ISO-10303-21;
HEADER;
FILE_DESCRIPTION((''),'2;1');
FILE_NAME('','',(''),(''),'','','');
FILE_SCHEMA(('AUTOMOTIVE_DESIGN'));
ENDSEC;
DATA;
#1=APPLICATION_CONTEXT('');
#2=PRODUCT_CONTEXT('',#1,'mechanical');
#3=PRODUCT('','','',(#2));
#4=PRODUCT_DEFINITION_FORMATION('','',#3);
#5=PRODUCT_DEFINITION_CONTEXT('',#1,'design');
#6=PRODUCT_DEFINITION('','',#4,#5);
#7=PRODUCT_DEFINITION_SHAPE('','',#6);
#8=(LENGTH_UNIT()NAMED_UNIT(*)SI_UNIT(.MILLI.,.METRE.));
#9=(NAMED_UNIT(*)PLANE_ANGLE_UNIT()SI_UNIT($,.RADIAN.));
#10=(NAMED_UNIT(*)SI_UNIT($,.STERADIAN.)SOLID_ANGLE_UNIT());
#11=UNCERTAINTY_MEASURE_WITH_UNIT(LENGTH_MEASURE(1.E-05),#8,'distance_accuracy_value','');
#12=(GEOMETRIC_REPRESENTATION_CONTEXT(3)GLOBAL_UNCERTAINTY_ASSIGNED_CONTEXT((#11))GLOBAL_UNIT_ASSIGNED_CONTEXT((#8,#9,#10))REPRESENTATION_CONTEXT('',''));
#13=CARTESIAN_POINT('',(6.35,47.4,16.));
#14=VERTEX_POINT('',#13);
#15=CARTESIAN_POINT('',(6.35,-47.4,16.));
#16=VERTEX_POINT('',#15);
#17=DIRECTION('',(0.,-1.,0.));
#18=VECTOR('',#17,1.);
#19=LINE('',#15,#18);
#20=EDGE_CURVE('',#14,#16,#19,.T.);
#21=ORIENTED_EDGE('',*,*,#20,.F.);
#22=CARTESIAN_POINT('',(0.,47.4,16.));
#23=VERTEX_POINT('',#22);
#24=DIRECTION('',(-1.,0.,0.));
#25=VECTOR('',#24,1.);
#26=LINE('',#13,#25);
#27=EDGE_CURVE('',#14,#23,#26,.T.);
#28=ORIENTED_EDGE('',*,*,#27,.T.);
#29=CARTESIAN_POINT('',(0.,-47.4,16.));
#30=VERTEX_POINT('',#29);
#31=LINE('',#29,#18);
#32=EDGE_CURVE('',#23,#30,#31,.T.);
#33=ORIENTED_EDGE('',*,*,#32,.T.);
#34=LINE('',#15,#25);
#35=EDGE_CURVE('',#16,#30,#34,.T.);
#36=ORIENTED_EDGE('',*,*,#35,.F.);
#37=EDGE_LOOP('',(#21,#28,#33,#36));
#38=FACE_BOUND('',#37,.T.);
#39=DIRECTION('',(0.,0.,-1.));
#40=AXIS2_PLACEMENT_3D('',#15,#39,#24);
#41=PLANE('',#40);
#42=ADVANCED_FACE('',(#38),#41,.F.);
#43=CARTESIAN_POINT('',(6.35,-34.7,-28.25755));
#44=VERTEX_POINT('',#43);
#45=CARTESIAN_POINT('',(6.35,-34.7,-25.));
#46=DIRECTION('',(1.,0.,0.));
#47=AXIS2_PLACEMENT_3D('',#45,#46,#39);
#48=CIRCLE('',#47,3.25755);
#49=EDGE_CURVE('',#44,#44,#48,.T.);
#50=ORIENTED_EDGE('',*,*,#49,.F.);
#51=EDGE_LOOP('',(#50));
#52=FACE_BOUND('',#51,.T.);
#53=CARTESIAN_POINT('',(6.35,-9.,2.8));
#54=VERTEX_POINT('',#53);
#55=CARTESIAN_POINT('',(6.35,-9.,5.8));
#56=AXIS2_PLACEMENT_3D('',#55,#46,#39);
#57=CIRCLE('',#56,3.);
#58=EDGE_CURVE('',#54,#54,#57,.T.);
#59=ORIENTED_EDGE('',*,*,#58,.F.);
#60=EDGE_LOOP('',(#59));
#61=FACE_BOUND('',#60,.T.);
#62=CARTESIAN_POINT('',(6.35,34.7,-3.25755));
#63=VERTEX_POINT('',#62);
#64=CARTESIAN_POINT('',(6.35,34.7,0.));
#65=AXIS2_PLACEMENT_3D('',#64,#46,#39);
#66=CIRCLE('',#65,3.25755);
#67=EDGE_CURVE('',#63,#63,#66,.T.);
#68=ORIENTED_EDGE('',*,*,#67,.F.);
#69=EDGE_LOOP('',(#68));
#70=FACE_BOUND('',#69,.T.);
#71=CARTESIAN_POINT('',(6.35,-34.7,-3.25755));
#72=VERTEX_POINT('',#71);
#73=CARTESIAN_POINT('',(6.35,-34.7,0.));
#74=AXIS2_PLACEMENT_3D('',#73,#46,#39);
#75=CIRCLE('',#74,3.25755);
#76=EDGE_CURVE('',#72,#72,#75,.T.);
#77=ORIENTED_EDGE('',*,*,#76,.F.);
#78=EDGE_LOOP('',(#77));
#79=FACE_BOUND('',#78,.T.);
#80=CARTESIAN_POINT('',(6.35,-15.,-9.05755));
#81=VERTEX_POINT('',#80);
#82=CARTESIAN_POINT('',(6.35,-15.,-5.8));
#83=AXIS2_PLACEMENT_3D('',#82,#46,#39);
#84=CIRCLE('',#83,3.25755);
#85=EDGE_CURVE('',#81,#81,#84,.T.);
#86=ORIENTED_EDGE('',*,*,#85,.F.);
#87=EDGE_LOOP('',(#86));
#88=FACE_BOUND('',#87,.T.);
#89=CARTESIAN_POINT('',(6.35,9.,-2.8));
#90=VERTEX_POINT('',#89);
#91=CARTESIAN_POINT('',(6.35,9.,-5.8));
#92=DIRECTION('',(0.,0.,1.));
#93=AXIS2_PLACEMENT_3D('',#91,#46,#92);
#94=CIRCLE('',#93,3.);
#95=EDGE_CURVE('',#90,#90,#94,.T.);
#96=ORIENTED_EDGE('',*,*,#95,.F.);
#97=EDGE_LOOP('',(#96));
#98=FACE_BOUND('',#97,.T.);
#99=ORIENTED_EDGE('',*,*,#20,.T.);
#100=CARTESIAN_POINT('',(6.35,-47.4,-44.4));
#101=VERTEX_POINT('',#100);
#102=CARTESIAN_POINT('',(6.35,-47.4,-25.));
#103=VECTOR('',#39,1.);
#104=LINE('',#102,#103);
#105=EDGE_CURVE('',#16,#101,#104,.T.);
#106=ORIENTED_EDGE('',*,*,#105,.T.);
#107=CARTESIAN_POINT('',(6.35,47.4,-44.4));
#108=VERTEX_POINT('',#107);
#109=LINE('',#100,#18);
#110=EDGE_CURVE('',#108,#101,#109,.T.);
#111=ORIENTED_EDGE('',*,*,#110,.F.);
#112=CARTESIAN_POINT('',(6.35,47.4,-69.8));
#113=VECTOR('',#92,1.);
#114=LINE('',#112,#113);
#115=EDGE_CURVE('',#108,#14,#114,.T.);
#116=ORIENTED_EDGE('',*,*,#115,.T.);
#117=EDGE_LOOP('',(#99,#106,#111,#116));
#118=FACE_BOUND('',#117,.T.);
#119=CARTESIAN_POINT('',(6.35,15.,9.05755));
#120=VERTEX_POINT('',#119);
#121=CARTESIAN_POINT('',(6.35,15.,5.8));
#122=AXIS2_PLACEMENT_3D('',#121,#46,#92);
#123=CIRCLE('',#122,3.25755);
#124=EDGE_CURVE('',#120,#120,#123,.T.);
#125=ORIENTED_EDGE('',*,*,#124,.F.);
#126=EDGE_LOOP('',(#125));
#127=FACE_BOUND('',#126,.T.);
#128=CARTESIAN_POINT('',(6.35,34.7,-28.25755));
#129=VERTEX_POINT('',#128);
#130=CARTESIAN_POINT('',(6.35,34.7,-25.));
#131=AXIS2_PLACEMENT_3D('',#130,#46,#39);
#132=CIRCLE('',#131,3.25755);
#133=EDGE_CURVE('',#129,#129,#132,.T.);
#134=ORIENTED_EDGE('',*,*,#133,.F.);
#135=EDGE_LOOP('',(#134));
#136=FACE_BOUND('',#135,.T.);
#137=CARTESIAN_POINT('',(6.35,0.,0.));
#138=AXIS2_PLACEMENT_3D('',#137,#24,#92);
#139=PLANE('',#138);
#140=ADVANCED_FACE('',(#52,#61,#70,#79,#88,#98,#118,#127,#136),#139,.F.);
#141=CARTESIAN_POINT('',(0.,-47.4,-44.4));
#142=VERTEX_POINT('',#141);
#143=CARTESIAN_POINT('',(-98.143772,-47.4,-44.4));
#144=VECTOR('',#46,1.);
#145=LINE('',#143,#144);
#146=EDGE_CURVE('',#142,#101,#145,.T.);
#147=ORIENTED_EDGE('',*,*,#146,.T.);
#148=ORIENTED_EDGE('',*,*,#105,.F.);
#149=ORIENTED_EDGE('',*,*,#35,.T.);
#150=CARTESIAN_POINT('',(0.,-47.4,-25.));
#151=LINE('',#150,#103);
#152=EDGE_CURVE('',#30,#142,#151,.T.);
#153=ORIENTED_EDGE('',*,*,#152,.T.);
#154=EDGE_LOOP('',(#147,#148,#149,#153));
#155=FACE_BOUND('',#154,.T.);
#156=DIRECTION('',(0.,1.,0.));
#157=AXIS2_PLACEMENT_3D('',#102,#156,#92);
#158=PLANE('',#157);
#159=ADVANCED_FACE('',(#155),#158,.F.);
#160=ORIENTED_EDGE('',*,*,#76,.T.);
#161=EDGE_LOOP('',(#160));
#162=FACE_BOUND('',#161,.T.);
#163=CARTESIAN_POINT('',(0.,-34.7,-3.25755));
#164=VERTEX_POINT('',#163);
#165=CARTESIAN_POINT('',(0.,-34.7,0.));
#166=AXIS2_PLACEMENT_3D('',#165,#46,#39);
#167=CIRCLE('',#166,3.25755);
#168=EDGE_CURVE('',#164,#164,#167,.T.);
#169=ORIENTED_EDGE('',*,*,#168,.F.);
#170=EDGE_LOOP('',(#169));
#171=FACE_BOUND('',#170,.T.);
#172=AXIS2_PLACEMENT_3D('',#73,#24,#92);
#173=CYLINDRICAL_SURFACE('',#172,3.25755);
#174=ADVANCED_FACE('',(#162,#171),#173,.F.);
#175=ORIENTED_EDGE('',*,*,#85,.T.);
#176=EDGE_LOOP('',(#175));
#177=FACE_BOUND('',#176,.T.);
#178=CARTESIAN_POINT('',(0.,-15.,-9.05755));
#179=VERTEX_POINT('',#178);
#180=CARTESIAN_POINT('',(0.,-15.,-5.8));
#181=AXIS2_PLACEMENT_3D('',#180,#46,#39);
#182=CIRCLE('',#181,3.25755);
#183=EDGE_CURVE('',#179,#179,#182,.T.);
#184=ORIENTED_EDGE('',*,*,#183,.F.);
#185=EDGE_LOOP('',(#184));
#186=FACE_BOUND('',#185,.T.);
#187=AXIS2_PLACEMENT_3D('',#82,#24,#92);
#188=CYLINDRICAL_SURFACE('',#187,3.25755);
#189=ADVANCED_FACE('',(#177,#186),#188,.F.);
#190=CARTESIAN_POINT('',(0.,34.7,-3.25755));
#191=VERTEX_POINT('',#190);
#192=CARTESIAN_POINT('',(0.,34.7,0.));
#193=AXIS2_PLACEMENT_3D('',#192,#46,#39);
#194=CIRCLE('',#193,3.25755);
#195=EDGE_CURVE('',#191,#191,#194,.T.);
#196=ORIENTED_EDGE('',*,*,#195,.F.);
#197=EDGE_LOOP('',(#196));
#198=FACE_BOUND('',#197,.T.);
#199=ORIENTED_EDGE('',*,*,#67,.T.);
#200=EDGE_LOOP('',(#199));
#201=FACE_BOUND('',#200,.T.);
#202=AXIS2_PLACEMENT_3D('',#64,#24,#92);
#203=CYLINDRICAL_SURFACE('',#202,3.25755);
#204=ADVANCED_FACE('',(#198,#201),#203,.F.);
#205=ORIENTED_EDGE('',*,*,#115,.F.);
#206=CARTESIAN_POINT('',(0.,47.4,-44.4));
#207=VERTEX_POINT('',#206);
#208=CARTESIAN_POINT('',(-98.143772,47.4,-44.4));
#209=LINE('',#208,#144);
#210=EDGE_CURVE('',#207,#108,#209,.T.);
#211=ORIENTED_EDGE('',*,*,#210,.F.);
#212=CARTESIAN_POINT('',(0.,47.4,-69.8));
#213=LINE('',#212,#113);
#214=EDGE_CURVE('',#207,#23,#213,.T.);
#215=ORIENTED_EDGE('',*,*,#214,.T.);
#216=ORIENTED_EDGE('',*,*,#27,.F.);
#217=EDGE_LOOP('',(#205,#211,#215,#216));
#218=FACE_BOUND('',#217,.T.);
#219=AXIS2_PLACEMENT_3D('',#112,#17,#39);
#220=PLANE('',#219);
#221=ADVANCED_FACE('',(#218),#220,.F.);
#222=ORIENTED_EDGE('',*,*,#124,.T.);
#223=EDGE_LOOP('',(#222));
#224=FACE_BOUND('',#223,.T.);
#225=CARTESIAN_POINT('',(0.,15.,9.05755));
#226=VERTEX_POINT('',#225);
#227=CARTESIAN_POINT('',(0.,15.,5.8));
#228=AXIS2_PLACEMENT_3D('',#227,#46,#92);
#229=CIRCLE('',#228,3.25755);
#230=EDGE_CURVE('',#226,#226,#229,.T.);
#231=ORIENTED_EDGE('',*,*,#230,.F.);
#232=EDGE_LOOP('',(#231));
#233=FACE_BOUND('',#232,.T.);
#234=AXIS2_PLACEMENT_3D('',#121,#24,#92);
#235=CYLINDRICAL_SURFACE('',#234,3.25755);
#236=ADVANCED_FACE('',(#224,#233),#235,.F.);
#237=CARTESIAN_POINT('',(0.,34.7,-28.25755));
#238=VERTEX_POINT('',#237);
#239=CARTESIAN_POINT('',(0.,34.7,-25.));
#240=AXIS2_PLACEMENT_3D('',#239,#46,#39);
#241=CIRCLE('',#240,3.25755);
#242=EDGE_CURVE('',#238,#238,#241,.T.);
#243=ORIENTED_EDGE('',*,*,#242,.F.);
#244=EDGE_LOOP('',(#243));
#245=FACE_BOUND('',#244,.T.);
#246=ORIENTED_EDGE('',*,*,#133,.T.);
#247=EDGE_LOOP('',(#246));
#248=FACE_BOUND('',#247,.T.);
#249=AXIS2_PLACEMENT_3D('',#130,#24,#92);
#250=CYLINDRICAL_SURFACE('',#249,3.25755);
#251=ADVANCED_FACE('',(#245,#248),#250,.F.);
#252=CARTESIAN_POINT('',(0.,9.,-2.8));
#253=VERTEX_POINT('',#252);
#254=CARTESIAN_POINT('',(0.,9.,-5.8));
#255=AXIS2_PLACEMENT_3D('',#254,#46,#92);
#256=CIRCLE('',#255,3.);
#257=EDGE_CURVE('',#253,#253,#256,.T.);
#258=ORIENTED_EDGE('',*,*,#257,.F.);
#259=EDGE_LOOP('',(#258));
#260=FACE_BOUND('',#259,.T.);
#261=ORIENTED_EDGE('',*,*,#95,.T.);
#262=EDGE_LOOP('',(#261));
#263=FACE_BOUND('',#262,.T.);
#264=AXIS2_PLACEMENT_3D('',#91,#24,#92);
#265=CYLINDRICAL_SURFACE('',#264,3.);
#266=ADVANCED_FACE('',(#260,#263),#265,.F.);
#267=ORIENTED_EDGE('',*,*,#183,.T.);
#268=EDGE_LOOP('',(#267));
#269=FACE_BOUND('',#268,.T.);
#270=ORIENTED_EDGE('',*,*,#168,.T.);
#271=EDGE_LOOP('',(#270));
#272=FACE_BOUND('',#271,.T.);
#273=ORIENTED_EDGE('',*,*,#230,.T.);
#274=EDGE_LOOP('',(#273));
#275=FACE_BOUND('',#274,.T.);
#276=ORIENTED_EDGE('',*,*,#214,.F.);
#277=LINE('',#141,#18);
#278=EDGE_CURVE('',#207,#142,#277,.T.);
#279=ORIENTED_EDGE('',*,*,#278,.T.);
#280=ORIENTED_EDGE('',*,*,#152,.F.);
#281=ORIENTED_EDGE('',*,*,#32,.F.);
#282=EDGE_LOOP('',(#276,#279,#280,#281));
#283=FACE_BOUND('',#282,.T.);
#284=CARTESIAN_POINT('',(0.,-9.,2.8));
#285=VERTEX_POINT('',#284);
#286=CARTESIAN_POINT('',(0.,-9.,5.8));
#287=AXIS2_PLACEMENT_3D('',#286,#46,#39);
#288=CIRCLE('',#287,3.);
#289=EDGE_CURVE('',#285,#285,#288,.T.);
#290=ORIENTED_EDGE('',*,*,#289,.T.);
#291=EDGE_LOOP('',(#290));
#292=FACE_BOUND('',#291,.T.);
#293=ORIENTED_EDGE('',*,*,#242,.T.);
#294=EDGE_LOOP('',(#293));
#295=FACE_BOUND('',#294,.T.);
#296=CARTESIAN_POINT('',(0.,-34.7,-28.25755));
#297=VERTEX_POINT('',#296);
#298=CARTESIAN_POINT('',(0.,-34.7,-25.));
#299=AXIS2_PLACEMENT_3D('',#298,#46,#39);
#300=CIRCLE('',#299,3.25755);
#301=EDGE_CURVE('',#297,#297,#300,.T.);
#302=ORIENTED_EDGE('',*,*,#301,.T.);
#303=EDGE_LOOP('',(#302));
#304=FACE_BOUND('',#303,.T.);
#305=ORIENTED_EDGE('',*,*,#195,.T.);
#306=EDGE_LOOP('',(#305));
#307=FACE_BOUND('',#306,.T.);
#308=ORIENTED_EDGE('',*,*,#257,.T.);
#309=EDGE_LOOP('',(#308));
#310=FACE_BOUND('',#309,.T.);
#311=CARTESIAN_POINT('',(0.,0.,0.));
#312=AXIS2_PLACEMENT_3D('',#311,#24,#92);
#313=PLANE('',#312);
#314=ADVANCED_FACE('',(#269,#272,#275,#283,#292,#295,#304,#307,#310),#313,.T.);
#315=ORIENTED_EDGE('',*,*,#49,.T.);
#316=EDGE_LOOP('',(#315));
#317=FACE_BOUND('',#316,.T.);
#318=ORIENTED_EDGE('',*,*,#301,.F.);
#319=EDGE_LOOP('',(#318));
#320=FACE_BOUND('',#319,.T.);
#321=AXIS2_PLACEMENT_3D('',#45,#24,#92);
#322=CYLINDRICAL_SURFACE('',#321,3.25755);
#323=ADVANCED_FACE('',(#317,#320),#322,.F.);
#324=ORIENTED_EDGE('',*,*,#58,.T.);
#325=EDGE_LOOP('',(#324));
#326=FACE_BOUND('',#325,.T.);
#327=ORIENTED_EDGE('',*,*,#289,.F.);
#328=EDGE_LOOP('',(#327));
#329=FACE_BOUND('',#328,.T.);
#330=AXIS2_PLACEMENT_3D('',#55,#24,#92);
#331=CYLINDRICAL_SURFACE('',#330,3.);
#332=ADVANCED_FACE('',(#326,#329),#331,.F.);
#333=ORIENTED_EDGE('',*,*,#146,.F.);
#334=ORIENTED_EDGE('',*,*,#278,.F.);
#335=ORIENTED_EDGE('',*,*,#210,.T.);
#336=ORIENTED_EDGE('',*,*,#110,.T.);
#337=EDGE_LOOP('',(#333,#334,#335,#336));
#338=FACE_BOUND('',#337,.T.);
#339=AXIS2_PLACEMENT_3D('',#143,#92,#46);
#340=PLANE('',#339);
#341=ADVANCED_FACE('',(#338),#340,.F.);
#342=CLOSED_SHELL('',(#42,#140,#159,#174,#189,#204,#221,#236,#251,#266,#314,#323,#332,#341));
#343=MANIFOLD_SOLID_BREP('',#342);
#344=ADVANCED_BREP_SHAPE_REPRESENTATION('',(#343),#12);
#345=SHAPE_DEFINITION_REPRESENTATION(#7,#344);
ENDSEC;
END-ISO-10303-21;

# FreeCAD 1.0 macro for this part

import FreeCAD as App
import Part
import Sketcher
from FreeCAD import Vector

doc = App.newDocument("Part")
params = doc.addObject("Spreadsheet::Sheet", "Params")
for row, (alias, value) in enumerate([
    ("sketch1_diameter", "6 mm"),
    ("sketch1_width", "94.8 mm"),
    ("sketch1_height", "85.8 mm"),
    ("pad1_length", "6.35 mm"),
    ("sketch2_width", "94.8 mm"),
    ("sketch2_height", "25.4 mm"),
    ("pocket1_length", "6.35 mm"),
], start=1):
    params.set(f"A{row}", alias)
    params.set(f"B{row}", "=" + value)
    params.setAlias(f"B{row}", alias)

body = doc.addObject("PartDesign::Body", "Body")

sketch1 = doc.addObject("Sketcher::SketchObject", "Sketch")
body.addObject(sketch1)
sketch1.AttachmentSupport = (doc.YZ_Plane, [""])
sketch1.MapMode = "FlatFace"
sketch1.addGeometry([
    Part.LineSegment(Vector(-47.4, -69.8, 0), Vector(47.4, -69.8, 0)),
    Part.LineSegment(Vector(47.4, -69.8, 0), Vector(47.4, 16, 0)),
    Part.LineSegment(Vector(47.4, 16, 0), Vector(-47.4, 16, 0)),
    Part.LineSegment(Vector(-47.4, 16, 0), Vector(-47.4, -69.8, 0)),
    Part.Circle(Vector(-34.7, -57.1, 0), Vector(0, 0, 1), 3.25755),
    Part.Circle(Vector(34.7, -57.1, 0), Vector(0, 0, 1), 3.25755),
    Part.Circle(Vector(-34.7, -25, 0), Vector(0, 0, 1), 3.25755),
    Part.Circle(Vector(-34.7, 0, 0), Vector(0, 0, 1), 3.25755),
    Part.Circle(Vector(-15, -5.8, 0), Vector(0, 0, 1), 3.25755),
    Part.Circle(Vector(-9, 5.8, 0), Vector(0, 0, 1), 3),
    Part.Circle(Vector(34.7, -25, 0), Vector(0, 0, 1), 3.25755),
    Part.Circle(Vector(9, -5.8, 0), Vector(0, 0, 1), 3),
    Part.Circle(Vector(15, 5.8, 0), Vector(0, 0, 1), 3.25755),
    Part.Circle(Vector(34.7, 0, 0), Vector(0, 0, 1), 3.25755),
], False)
sketch1.addConstraint([
    Sketcher.Constraint("Coincident", 0, 2, 1, 1),
    Sketcher.Constraint("Coincident", 1, 2, 2, 1),
    Sketcher.Constraint("Coincident", 2, 2, 3, 1),
    Sketcher.Constraint("Coincident", 3, 2, 0, 1),
    Sketcher.Constraint("Horizontal", 0),
    Sketcher.Constraint("Vertical", 1),
    Sketcher.Constraint("Horizontal", 2),
    Sketcher.Constraint("Vertical", 3),
    Sketcher.Constraint("Equal", 4, 5),
    Sketcher.Constraint("Equal", 5, 6),
    Sketcher.Constraint("Equal", 6, 7),
    Sketcher.Constraint("Equal", 7, 8),
    Sketcher.Constraint("Equal", 8, 10),
    Sketcher.Constraint("Equal", 9, 11),
    Sketcher.Constraint("Equal", 10, 12),
    Sketcher.Constraint("Equal", 12, 13),
    Sketcher.Constraint("Symmetric", 9, 3, 11, 3, -1, 1),
    Sketcher.Constraint("Symmetric", 8, 3, 12, 3, -1, 1),
    Sketcher.Constraint("Symmetric", 7, 3, 13, 3, -1, 1),
    Sketcher.Constraint("Symmetric", 4, 3, 5, 3, -2),
    Sketcher.Constraint("Symmetric", 6, 3, 10, 3, -2),
    Sketcher.Constraint("PointOnObject", 7, 3, -1),
    Sketcher.Constraint("Horizontal", 8, 3, 11, 3),
    Sketcher.Constraint("Vertical", 4, 3, 6, 3),
    Sketcher.Constraint("Vertical", 6, 3, 7, 3),
    Sketcher.Constraint("Diameter", 9, 6.0),
    Sketcher.Constraint("DistanceX", 0, 1, 0, 2, 94.8),
    Sketcher.Constraint("DistanceY", 1, 1, 1, 2, 85.8),
    Sketcher.Constraint("DistanceY", 6, 3, -1, 1, 25.0),
    Sketcher.Constraint("DistanceX", 8, 3, -1, 1, 15.0),
    Sketcher.Constraint("DistanceX", 9, 3, -1, 1, 9.0),
    Sketcher.Constraint("DistanceY", -1, 1, 1, 2, 16.0),
    Sketcher.Constraint("DistanceY", 0, 2, 11, 3, 64.0),
    Sketcher.Constraint("Diameter", 4, 6.5151),
    Sketcher.Constraint("DistanceX", 4, 3, -1, 1, 34.7),
    Sketcher.Constraint("DistanceY", 4, 3, -1, 1, 57.1),
    Sketcher.Constraint("DistanceX", -1, 1, 0, 2, 47.4),
])
sketch1.setExpression("Constraints[25]", "Params.sketch1_diameter")
sketch1.setExpression("Constraints[26]", "Params.sketch1_width")
sketch1.setExpression("Constraints[27]", "Params.sketch1_height")
pad1 = doc.addObject("PartDesign::Pad", "Pad")
body.addObject(pad1)
pad1.Profile = sketch1
pad1.setExpression("Length", "Params.pad1_length")

sketch2 = doc.addObject("Sketcher::SketchObject", "Sketch001")
body.addObject(sketch2)
sketch2.AttachmentSupport = (doc.YZ_Plane, [""])
sketch2.MapMode = "FlatFace"
sketch2.AttachmentOffset = App.Placement(Vector(0, 0, 6.35), App.Rotation())
sketch2.addGeometry([
    Part.LineSegment(Vector(-47.4, -44.4, 0), Vector(-47.4, -69.8, 0)),
    Part.LineSegment(Vector(-47.4, -69.8, 0), Vector(47.4, -69.8, 0)),
    Part.LineSegment(Vector(47.4, -69.8, 0), Vector(47.4, -44.4, 0)),
    Part.LineSegment(Vector(47.4, -44.4, 0), Vector(-47.4, -44.4, 0)),
], False)
sketch2.addConstraint([
    Sketcher.Constraint("Coincident", 0, 2, 1, 1),
    Sketcher.Constraint("Coincident", 1, 2, 2, 1),
    Sketcher.Constraint("Coincident", 2, 2, 3, 1),
    Sketcher.Constraint("Coincident", 3, 2, 0, 1),
    Sketcher.Constraint("Vertical", 0),
    Sketcher.Constraint("Horizontal", 1),
    Sketcher.Constraint("Vertical", 2),
    Sketcher.Constraint("Horizontal", 3),
    Sketcher.Constraint("DistanceX", 1, 1, 1, 2, 94.8),
    Sketcher.Constraint("DistanceY", 0, 2, 0, 1, 25.4),
    Sketcher.Constraint("DistanceX", 0, 2, -1, 1, 47.4),
    Sketcher.Constraint("DistanceY", 0, 2, -1, 1, 69.8),
])
sketch2.setExpression("Constraints[8]", "Params.sketch2_width")
sketch2.setExpression("Constraints[9]", "Params.sketch2_height")
pocket1 = doc.addObject("PartDesign::Pocket", "Pocket")
body.addObject(pocket1)
pocket1.Profile = sketch2
pocket1.setExpression("Length", "Params.pocket1_length")

doc.recompute()
